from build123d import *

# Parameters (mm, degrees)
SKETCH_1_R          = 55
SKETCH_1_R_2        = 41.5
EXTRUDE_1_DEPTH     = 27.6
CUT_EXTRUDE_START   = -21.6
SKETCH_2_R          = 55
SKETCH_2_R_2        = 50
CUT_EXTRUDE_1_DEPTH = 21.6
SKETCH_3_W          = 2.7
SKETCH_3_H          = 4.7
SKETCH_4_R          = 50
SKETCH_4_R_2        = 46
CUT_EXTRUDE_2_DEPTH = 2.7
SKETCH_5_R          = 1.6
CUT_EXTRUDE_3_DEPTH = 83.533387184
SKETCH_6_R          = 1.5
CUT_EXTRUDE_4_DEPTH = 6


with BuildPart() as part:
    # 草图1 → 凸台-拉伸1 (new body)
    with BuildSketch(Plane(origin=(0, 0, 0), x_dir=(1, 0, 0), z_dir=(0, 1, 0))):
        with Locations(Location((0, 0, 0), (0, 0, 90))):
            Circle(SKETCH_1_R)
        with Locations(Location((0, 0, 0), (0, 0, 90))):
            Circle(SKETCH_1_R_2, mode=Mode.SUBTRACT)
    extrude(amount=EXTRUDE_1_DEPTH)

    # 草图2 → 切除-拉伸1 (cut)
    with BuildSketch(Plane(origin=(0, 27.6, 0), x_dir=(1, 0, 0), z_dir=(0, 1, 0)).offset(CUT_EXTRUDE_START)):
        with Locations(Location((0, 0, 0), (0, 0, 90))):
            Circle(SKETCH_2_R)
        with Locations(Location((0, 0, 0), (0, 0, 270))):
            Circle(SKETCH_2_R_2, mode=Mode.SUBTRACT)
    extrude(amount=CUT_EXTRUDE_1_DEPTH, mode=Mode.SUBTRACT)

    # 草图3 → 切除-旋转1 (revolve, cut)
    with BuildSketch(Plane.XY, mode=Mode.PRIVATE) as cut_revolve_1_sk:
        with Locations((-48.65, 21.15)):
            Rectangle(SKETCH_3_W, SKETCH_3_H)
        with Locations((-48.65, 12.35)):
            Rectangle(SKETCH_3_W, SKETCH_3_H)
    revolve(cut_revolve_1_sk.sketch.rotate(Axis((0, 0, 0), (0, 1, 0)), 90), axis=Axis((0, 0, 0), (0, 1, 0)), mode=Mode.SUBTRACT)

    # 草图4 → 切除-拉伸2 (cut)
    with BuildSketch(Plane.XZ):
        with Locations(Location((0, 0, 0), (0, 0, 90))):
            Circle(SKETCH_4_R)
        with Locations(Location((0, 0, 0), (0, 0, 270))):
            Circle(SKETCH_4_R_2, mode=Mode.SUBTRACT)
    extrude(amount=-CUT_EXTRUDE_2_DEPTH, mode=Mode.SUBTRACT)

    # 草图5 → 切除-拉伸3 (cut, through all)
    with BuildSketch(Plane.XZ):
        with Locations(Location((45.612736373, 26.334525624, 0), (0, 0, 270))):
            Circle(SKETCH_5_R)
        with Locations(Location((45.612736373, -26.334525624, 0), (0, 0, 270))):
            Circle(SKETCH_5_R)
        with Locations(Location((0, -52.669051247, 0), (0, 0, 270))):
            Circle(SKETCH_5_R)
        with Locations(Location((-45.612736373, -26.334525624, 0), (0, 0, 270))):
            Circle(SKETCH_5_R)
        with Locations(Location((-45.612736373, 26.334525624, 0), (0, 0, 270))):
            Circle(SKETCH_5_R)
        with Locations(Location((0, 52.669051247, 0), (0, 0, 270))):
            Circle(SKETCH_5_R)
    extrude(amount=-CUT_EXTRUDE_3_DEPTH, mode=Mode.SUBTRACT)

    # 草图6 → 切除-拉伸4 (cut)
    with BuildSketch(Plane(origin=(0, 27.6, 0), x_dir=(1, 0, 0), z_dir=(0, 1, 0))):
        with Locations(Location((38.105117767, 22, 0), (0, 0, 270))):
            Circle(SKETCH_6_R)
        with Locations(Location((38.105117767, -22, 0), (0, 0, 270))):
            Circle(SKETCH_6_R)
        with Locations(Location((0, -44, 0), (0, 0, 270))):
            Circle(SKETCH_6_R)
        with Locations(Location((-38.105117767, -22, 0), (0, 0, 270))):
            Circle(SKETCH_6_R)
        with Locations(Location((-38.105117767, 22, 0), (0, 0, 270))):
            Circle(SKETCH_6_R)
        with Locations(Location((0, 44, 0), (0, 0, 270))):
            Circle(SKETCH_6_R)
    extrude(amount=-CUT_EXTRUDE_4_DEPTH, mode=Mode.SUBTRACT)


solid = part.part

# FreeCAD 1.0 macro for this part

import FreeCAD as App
import Part
import Sketcher

V = App.Vector


def add_polygon(sketch, points):
    """Adds a closed chain of lines whose ends are joined by coincident constraints."""
    first, n = sketch.GeometryCount, len(points)
    for a, b in zip(points, points[1:] + points[:1]):
        sketch.addGeometry(Part.LineSegment(App.Vector(*a, 0), App.Vector(*b, 0)), False)
    for i in range(n):
        sketch.addConstraint(Sketcher.Constraint("Coincident", first + i, 2, first + (i + 1) % n, 1))

doc = App.newDocument("Part")
body = doc.addObject("PartDesign::Body", "Body")

# Sketch on XZ plane
sketch1 = body.newObject("Sketcher::SketchObject", "Sketch")
sketch1.AttachmentSupport = (doc.getObject("XZ_Plane"), [""])
sketch1.MapMode = "FlatFace"
sketch1.addGeometry([
    Part.Circle(V(0, 0, 0), V(0, 0, 1), 55),
    Part.Circle(V(0, 0, 0), V(0, 0, 1), 42),
], False)
sketch1.addConstraint([
    Sketcher.Constraint("Coincident", 0, 3, -1, 1),
    Sketcher.Constraint("Coincident", 1, 3, -1, 1),
    Sketcher.Constraint("Diameter", 0, 110.0),
    Sketcher.Constraint("Diameter", 1, 83.0),
])
pad1 = body.newObject("PartDesign::Pad", "Pad")
pad1.Profile = sketch1
pad1.Length = 27.6
pad1.Reversed = True

# Sketch on XZ plane
sketch2 = body.newObject("Sketcher::SketchObject", "Sketch001")
sketch2.AttachmentSupport = (doc.getObject("XZ_Plane"), [""])
sketch2.MapMode = "FlatFace"
sketch2.AttachmentOffset = App.Placement(V(0, 0, -6), App.Rotation())
sketch2.addGeometry([
    Part.Circle(V(0, 0, 0), V(0, 0, 1), 55),
    Part.Circle(V(0, 0, 0), V(0, 0, 1), 50),
], False)
sketch2.addConstraint([
    Sketcher.Constraint("Coincident", 0, 3, -1, 1),
    Sketcher.Constraint("Coincident", 1, 3, -1, 1),
    Sketcher.Constraint("Diameter", 0, 110.0),
    Sketcher.Constraint("Diameter", 1, 100.0),
])
pocket1 = body.newObject("PartDesign::Pocket", "Pocket")
pocket1.Profile = sketch2
pocket1.Length = 21.6

# Sketch on XY plane
sketch3 = body.newObject("Sketcher::SketchObject", "Sketch002")
sketch3.AttachmentSupport = (doc.getObject("XY_Plane"), [""])
sketch3.MapMode = "FlatFace"
add_polygon(sketch3, [(-50, 23.5), (-50, 18.8), (-47.3, 18.8), (-47.3, 23.5)])  # lines 0-3
add_polygon(sketch3, [(-50, 14.7), (-50, 10), (-47.3, 10), (-47.3, 14.7)])  # lines 4-7
sketch3.addConstraint([
    Sketcher.Constraint("Vertical", 0),
    Sketcher.Constraint("Horizontal", 1),
    Sketcher.Constraint("Vertical", 2),
    Sketcher.Constraint("Horizontal", 3),
    Sketcher.Constraint("Vertical", 4),
    Sketcher.Constraint("Horizontal", 5),
    Sketcher.Constraint("Vertical", 6),
    Sketcher.Constraint("Horizontal", 7),
    Sketcher.Constraint("Vertical", 3, 2, 4, 2),
    Sketcher.Constraint("Vertical", 2, 2, 5, 2),
    Sketcher.Constraint("Equal", 2, 4),
    Sketcher.Constraint("DistanceX", 1, 1, 1, 2, 2.7),
    Sketcher.Constraint("DistanceY", 0, 2, 0, 1, 4.7),
    Sketcher.Constraint("DistanceX", 0, 2, -1, 1, 50.0),
    Sketcher.Constraint("DistanceY", -1, 1, 4, 2, 10.0),
    Sketcher.Constraint("DistanceY", -1, 1, 0, 2, 18.8),
])
groove = body.newObject("PartDesign::Groove", "Groove")
groove.Profile = sketch3
groove.ReferenceAxis = (sketch3, ["V_Axis"])
groove.Angle = 360

# Sketch on XZ plane
sketch4 = body.newObject("Sketcher::SketchObject", "Sketch003")
sketch4.AttachmentSupport = (doc.getObject("XZ_Plane"), [""])
sketch4.MapMode = "FlatFace"
sketch4.addGeometry([
    Part.Circle(V(0, 0, 0), V(0, 0, 1), 50),
    Part.Circle(V(0, 0, 0), V(0, 0, 1), 46),
], False)
sketch4.addConstraint([
    Sketcher.Constraint("Coincident", 0, 3, -1, 1),
    Sketcher.Constraint("Coincident", 1, 3, -1, 1),
    Sketcher.Constraint("Diameter", 0, 100.0),
    Sketcher.Constraint("Diameter", 1, 92.0),
])
pocket2 = body.newObject("PartDesign::Pocket", "Pocket001")
pocket2.Profile = sketch4
pocket2.Length = 2.7

# Sketch on XZ plane
sketch5 = body.newObject("Sketcher::SketchObject", "Sketch004")
sketch5.AttachmentSupport = (doc.getObject("XZ_Plane"), [""])
sketch5.MapMode = "FlatFace"
sketch5.addGeometry([
    Part.Circle(V(45.6, 26.3, 0), V(0, 0, 1), 1.6),  # 0
    Part.Circle(V(45.6, -26.3, 0), V(0, 0, 1), 1.6),  # 1
    Part.Circle(V(0, -52.7, 0), V(0, 0, 1), 1.6),  # 2
    Part.Circle(V(-45.6, -26.3, 0), V(0, 0, 1), 1.6),  # 3
    Part.Circle(V(-45.6, 26.3, 0), V(0, 0, 1), 1.6),  # 4
    Part.Circle(V(0, 52.7, 0), V(0, 0, 1), 1.6),  # 5
], False)
sketch5.addConstraint([
    Sketcher.Constraint("Equal", 0, 1),
    Sketcher.Constraint("Equal", 1, 2),
    Sketcher.Constraint("Equal", 2, 3),
    Sketcher.Constraint("Equal", 3, 4),
    Sketcher.Constraint("Equal", 4, 5),
    Sketcher.Constraint("Symmetric", 0, 3, 3, 3, -1, 1),
    Sketcher.Constraint("Symmetric", 1, 3, 4, 3, -1, 1),
    Sketcher.Constraint("Symmetric", 2, 3, 5, 3, -1, 1),
    Sketcher.Constraint("Symmetric", 1, 3, 3, 3, -2),
    Sketcher.Constraint("PointOnObject", 2, 3, -2),
    Sketcher.Constraint("Diameter", 0, 3.2),
    Sketcher.Constraint("DistanceY", 2, 3, -1, 1, 52.669051),
    Sketcher.Constraint("DistanceY", 1, 3, 0, 3, 52.669051),
    Sketcher.Constraint("DistanceX", -1, 1, 0, 3, 45.612736),
])
pocket3 = body.newObject("PartDesign::Pocket", "Pocket002")
pocket3.Profile = sketch5
pocket3.Type = "ThroughAll"

# Sketch on XZ plane
sketch6 = body.newObject("Sketcher::SketchObject", "Sketch005")
sketch6.AttachmentSupport = (doc.getObject("XZ_Plane"), [""])
sketch6.MapMode = "FlatFace"
sketch6.AttachmentOffset = App.Placement(V(0, 0, -27.6), App.Rotation())
sketch6.addGeometry([
    Part.Circle(V(38.1, -22, 0), V(0, 0, 1), 1.5),  # 0
    Part.Circle(V(38.1, 22, 0), V(0, 0, 1), 1.5),  # 1
    Part.Circle(V(0, 44, 0), V(0, 0, 1), 1.5),  # 2
    Part.Circle(V(-38.1, 22, 0), V(0, 0, 1), 1.5),  # 3
    Part.Circle(V(-38.1, -22, 0), V(0, 0, 1), 1.5),  # 4
    Part.Circle(V(0, -44, 0), V(0, 0, 1), 1.5),  # 5
], False)
sketch6.addConstraint([
    Sketcher.Constraint("Equal", 0, 1),
    Sketcher.Constraint("Equal", 1, 2),
    Sketcher.Constraint("Equal", 2, 3),
    Sketcher.Constraint("Equal", 3, 4),
    Sketcher.Constraint("Equal", 4, 5),
    Sketcher.Constraint("Symmetric", 0, 3, 3, 3, -1, 1),
    Sketcher.Constraint("Symmetric", 1, 3, 4, 3, -1, 1),
    Sketcher.Constraint("Symmetric", 2, 3, 5, 3, -1, 1),
    Sketcher.Constraint("Symmetric", 1, 3, 3, 3, -2),
    Sketcher.Constraint("PointOnObject", 2, 3, -2),
    Sketcher.Constraint("Diameter", 0, 3.0),
    Sketcher.Constraint("DistanceY", 0, 3, -1, 1, 22.0),
    Sketcher.Constraint("DistanceY", -1, 1, 2, 3, 44.0),
    Sketcher.Constraint("DistanceX", -1, 1, 0, 3, 38.105118),
])
pocket4 = body.newObject("PartDesign::Pocket", "Pocket003")
pocket4.Profile = sketch6
pocket4.Length = 6
pocket4.Reversed = True

doc.recompute()
